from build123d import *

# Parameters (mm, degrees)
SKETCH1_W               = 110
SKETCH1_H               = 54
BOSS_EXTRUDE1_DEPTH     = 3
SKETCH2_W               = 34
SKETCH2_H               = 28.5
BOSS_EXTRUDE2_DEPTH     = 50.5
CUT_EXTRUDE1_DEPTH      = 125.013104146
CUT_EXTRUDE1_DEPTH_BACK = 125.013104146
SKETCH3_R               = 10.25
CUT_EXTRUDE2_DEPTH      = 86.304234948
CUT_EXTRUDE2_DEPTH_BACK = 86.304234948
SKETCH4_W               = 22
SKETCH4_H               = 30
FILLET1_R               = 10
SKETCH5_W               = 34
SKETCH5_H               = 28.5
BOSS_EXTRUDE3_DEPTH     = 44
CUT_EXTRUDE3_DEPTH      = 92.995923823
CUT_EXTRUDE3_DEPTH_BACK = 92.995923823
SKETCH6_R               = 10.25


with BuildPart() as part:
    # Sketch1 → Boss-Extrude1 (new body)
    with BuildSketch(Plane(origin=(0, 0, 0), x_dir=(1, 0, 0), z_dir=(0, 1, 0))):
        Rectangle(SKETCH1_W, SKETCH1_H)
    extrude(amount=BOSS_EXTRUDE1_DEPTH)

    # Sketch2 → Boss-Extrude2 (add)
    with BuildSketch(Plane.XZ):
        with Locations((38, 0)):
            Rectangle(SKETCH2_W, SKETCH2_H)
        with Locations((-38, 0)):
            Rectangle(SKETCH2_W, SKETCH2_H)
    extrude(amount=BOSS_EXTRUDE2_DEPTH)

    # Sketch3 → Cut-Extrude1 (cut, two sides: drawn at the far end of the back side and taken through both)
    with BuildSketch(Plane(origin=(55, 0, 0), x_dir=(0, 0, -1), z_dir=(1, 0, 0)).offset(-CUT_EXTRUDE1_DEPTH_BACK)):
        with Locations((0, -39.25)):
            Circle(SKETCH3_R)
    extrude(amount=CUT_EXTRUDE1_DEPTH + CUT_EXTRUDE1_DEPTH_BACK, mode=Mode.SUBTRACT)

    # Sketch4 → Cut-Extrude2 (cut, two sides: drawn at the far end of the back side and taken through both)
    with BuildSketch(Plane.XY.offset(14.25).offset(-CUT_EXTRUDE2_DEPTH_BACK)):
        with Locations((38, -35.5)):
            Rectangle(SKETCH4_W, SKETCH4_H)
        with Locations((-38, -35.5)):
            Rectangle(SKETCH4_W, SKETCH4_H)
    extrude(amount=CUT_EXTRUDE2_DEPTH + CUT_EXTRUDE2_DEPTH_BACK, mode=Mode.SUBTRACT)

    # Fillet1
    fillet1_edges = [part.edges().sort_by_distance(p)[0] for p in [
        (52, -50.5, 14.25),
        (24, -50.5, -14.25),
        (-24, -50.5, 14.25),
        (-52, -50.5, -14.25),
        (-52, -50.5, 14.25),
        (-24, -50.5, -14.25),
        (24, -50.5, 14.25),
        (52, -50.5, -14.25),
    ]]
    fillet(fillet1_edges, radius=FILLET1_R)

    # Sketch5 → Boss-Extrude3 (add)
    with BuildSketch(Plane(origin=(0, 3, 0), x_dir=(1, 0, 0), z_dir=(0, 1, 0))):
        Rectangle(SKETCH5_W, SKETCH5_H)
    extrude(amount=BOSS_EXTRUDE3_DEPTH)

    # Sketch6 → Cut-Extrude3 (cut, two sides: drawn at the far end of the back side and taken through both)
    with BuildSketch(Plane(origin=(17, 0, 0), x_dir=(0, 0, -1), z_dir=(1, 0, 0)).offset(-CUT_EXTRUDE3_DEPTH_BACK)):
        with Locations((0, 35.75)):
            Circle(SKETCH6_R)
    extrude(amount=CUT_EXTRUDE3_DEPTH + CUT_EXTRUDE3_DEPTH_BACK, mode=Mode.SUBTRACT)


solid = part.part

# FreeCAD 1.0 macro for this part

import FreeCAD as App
import Part
import Sketcher
Q = App.Units.Quantity


def edges_at(feature, points):
    """Names of the edges that pass closest to the given points."""
    edges = feature.Shape.Edges
    near = lambda p: min(range(len(edges)), key=lambda i: edges[i].distToShape(Part.Vertex(*p))[0])
    return sorted({f"Edge{near(p) + 1}" for p in points})

doc = App.newDocument("Part")
body = doc.addObject("PartDesign::Body", "Body")

# Sketch on XZ plane
sketch1 = body.newObject("Sketcher::SketchObject", "Sketch")
sketch1.AttachmentSupport = (doc.getObject("XZ_Plane"), [""])
sketch1.MapMode = "FlatFace"
sketch1.addGeometry(Part.LineSegment(App.Vector(-55, -27, 0), App.Vector(-55, 27, 0)), False)
sketch1.addGeometry(Part.LineSegment(App.Vector(-55, 27, 0), App.Vector(55, 27, 0)), False)
sketch1.addGeometry(Part.LineSegment(App.Vector(55, 27, 0), App.Vector(55, -27, 0)), False)
sketch1.addGeometry(Part.LineSegment(App.Vector(55, -27, 0), App.Vector(-55, -27, 0)), False)
sketch1.addConstraint(Sketcher.Constraint("Coincident", 0, 2, 1, 1))
sketch1.addConstraint(Sketcher.Constraint("Coincident", 1, 2, 2, 1))
sketch1.addConstraint(Sketcher.Constraint("Coincident", 2, 2, 3, 1))
sketch1.addConstraint(Sketcher.Constraint("Coincident", 3, 2, 0, 1))
sketch1.addConstraint(Sketcher.Constraint("Vertical", 0))
sketch1.addConstraint(Sketcher.Constraint("Horizontal", 1))
sketch1.addConstraint(Sketcher.Constraint("Vertical", 2))
sketch1.addConstraint(Sketcher.Constraint("Horizontal", 3))
sketch1.addConstraint(Sketcher.Constraint("Symmetric", 0, 2, 2, 2, -1, 1))
sketch1.addConstraint(Sketcher.Constraint("DistanceX", 1, 1, 1, 2, Q("110 mm")))
sketch1.addConstraint(Sketcher.Constraint("DistanceY", 0, 1, 0, 2, Q("54 mm")))
pad1 = body.newObject("PartDesign::Pad", "Pad")
pad1.Profile = sketch1
pad1.Length = 3
pad1.Reversed = True

# Sketch on XZ plane
sketch2 = body.newObject("Sketcher::SketchObject", "Sketch001")
sketch2.AttachmentSupport = (doc.getObject("XZ_Plane"), [""])
sketch2.MapMode = "FlatFace"
sketch2.addGeometry(Part.LineSegment(App.Vector(21, 14, 0), App.Vector(21, -14, 0)), False)
sketch2.addGeometry(Part.LineSegment(App.Vector(21, -14, 0), App.Vector(55, -14, 0)), False)
sketch2.addGeometry(Part.LineSegment(App.Vector(55, -14, 0), App.Vector(55, 14, 0)), False)
sketch2.addGeometry(Part.LineSegment(App.Vector(55, 14, 0), App.Vector(21, 14, 0)), False)
sketch2.addGeometry(Part.LineSegment(App.Vector(-55, 14, 0), App.Vector(-55, -14, 0)), False)
sketch2.addGeometry(Part.LineSegment(App.Vector(-55, -14, 0), App.Vector(-21, -14, 0)), False)
sketch2.addGeometry(Part.LineSegment(App.Vector(-21, -14, 0), App.Vector(-21, 14, 0)), False)
sketch2.addGeometry(Part.LineSegment(App.Vector(-21, 14, 0), App.Vector(-55, 14, 0)), False)
sketch2.addConstraint(Sketcher.Constraint("Coincident", 0, 2, 1, 1))
sketch2.addConstraint(Sketcher.Constraint("Coincident", 1, 2, 2, 1))
sketch2.addConstraint(Sketcher.Constraint("Coincident", 2, 2, 3, 1))
sketch2.addConstraint(Sketcher.Constraint("Coincident", 3, 2, 0, 1))
sketch2.addConstraint(Sketcher.Constraint("Coincident", 4, 2, 5, 1))
sketch2.addConstraint(Sketcher.Constraint("Coincident", 5, 2, 6, 1))
sketch2.addConstraint(Sketcher.Constraint("Coincident", 6, 2, 7, 1))
sketch2.addConstraint(Sketcher.Constraint("Coincident", 7, 2, 4, 1))
sketch2.addConstraint(Sketcher.Constraint("Vertical", 0))
sketch2.addConstraint(Sketcher.Constraint("Horizontal", 1))
sketch2.addConstraint(Sketcher.Constraint("Vertical", 2))
sketch2.addConstraint(Sketcher.Constraint("Horizontal", 3))
sketch2.addConstraint(Sketcher.Constraint("Vertical", 4))
sketch2.addConstraint(Sketcher.Constraint("Horizontal", 5))
sketch2.addConstraint(Sketcher.Constraint("Vertical", 6))
sketch2.addConstraint(Sketcher.Constraint("Horizontal", 7))
sketch2.addConstraint(Sketcher.Constraint("Symmetric", 2, 2, 4, 2, -1, 1))
sketch2.addConstraint(Sketcher.Constraint("Symmetric", 0, 2, 6, 2, -1, 1))
sketch2.addConstraint(Sketcher.Constraint("Horizontal", 1, 2, 4, 2))
sketch2.addConstraint(Sketcher.Constraint("DistanceX", 1, 1, 1, 2, Q("34 mm")))
sketch2.addConstraint(Sketcher.Constraint("DistanceY", 0, 2, 0, 1, Q("28.5 mm")))
sketch2.addConstraint(Sketcher.Constraint("DistanceX", -1, 1, 0, 2, Q("21 mm")))
pad2 = body.newObject("PartDesign::Pad", "Pad001")
pad2.Profile = sketch2
pad2.Length = 50.5

# Sketch on YZ plane
sketch3 = body.newObject("Sketcher::SketchObject", "Sketch002")
sketch3.AttachmentSupport = (doc.getObject("YZ_Plane"), [""])
sketch3.MapMode = "FlatFace"
sketch3.AttachmentOffset = App.Placement(App.Vector(0, 0, 55), App.Rotation())
sketch3.addGeometry(Part.Circle(App.Vector(-39, 0, 0), App.Vector(0, 0, 1), 10), False)
sketch3.addConstraint(Sketcher.Constraint("PointOnObject", 0, 3, -1))
sketch3.addConstraint(Sketcher.Constraint("Diameter", 0, Q("20.5 mm")))
sketch3.addConstraint(Sketcher.Constraint("DistanceX", 0, 3, -1, 1, Q("39.25 mm")))
pocket1 = body.newObject("PartDesign::Pocket", "Pocket")
pocket1.Profile = sketch3
pocket1.Type = "ThroughAll"
pocket1.Midplane = True

# Sketch on XY plane
sketch4 = body.newObject("Sketcher::SketchObject", "Sketch003")
sketch4.AttachmentSupport = (doc.getObject("XY_Plane"), [""])
sketch4.MapMode = "FlatFace"
sketch4.AttachmentOffset = App.Placement(App.Vector(0, 0, 14.25), App.Rotation())
sketch4.addGeometry(Part.LineSegment(App.Vector(27, -20, 0), App.Vector(27, -50, 0)), False)
sketch4.addGeometry(Part.LineSegment(App.Vector(27, -50, 0), App.Vector(49, -50, 0)), False)
sketch4.addGeometry(Part.LineSegment(App.Vector(49, -50, 0), App.Vector(49, -20, 0)), False)
sketch4.addGeometry(Part.LineSegment(App.Vector(49, -20, 0), App.Vector(27, -20, 0)), False)
sketch4.addGeometry(Part.LineSegment(App.Vector(-49, -20, 0), App.Vector(-49, -50, 0)), False)
sketch4.addGeometry(Part.LineSegment(App.Vector(-49, -50, 0), App.Vector(-27, -50, 0)), False)
sketch4.addGeometry(Part.LineSegment(App.Vector(-27, -50, 0), App.Vector(-27, -20, 0)), False)
sketch4.addGeometry(Part.LineSegment(App.Vector(-27, -20, 0), App.Vector(-49, -20, 0)), False)
sketch4.addConstraint(Sketcher.Constraint("Coincident", 0, 2, 1, 1))
sketch4.addConstraint(Sketcher.Constraint("Coincident", 1, 2, 2, 1))
sketch4.addConstraint(Sketcher.Constraint("Coincident", 2, 2, 3, 1))
sketch4.addConstraint(Sketcher.Constraint("Coincident", 3, 2, 0, 1))
sketch4.addConstraint(Sketcher.Constraint("Coincident", 4, 2, 5, 1))
sketch4.addConstraint(Sketcher.Constraint("Coincident", 5, 2, 6, 1))
sketch4.addConstraint(Sketcher.Constraint("Coincident", 6, 2, 7, 1))
sketch4.addConstraint(Sketcher.Constraint("Coincident", 7, 2, 4, 1))
sketch4.addConstraint(Sketcher.Constraint("Vertical", 0))
sketch4.addConstraint(Sketcher.Constraint("Horizontal", 1))
sketch4.addConstraint(Sketcher.Constraint("Vertical", 2))
sketch4.addConstraint(Sketcher.Constraint("Horizontal", 3))
sketch4.addConstraint(Sketcher.Constraint("Vertical", 4))
sketch4.addConstraint(Sketcher.Constraint("Horizontal", 5))
sketch4.addConstraint(Sketcher.Constraint("Vertical", 6))
sketch4.addConstraint(Sketcher.Constraint("Horizontal", 7))
sketch4.addConstraint(Sketcher.Constraint("Symmetric", 1, 2, 4, 2, -2))
sketch4.addConstraint(Sketcher.Constraint("Symmetric", 3, 2, 6, 2, -2))
sketch4.addConstraint(Sketcher.Constraint("DistanceX", 1, 1, 1, 2, Q("22 mm")))
sketch4.addConstraint(Sketcher.Constraint("DistanceY", 0, 2, 0, 1, Q("30 mm")))
sketch4.addConstraint(Sketcher.Constraint("DistanceX", -1, 1, 0, 2, Q("27 mm")))
sketch4.addConstraint(Sketcher.Constraint("DistanceY", 0, 2, -1, 1, Q("50.5 mm")))
pocket2 = body.newObject("PartDesign::Pocket", "Pocket001")
pocket2.Profile = sketch4
pocket2.Type = "ThroughAll"
pocket2.Midplane = True
doc.recompute()

fillet = body.newObject("PartDesign::Fillet", "Fillet")
fillet.Base = (pocket2, edges_at(pocket2, [
    (52, -50.5, 14.25),
    (24, -50.5, -14.25),
    (-24, -50.5, 14.25),
    (-52, -50.5, -14.25),
    (-52, -50.5, 14.25),
    (-24, -50.5, -14.25),
    (24, -50.5, 14.25),
    (52, -50.5, -14.25),
]))
fillet.Radius = 10

# Sketch on XZ plane
sketch5 = body.newObject("Sketcher::SketchObject", "Sketch004")
sketch5.AttachmentSupport = (doc.getObject("XZ_Plane"), [""])
sketch5.MapMode = "FlatFace"
sketch5.AttachmentOffset = App.Placement(App.Vector(0, 0, -3), App.Rotation())
sketch5.addGeometry(Part.LineSegment(App.Vector(-17, -14, 0), App.Vector(-17, 14, 0)), False)
sketch5.addGeometry(Part.LineSegment(App.Vector(-17, 14, 0), App.Vector(17, 14, 0)), False)
sketch5.addGeometry(Part.LineSegment(App.Vector(17, 14, 0), App.Vector(17, -14, 0)), False)
sketch5.addGeometry(Part.LineSegment(App.Vector(17, -14, 0), App.Vector(-17, -14, 0)), False)
sketch5.addConstraint(Sketcher.Constraint("Coincident", 0, 2, 1, 1))
sketch5.addConstraint(Sketcher.Constraint("Coincident", 1, 2, 2, 1))
sketch5.addConstraint(Sketcher.Constraint("Coincident", 2, 2, 3, 1))
sketch5.addConstraint(Sketcher.Constraint("Coincident", 3, 2, 0, 1))
sketch5.addConstraint(Sketcher.Constraint("Vertical", 0))
sketch5.addConstraint(Sketcher.Constraint("Horizontal", 1))
sketch5.addConstraint(Sketcher.Constraint("Vertical", 2))
sketch5.addConstraint(Sketcher.Constraint("Horizontal", 3))
sketch5.addConstraint(Sketcher.Constraint("Symmetric", 0, 2, 2, 2, -1, 1))
sketch5.addConstraint(Sketcher.Constraint("DistanceX", 1, 1, 1, 2, Q("34 mm")))
sketch5.addConstraint(Sketcher.Constraint("DistanceY", 0, 1, 0, 2, Q("28.5 mm")))
pad3 = body.newObject("PartDesign::Pad", "Pad002")
pad3.Profile = sketch5
pad3.Length = 44
pad3.Reversed = True

# Sketch on YZ plane
sketch6 = body.newObject("Sketcher::SketchObject", "Sketch005")
sketch6.AttachmentSupport = (doc.getObject("YZ_Plane"), [""])
sketch6.MapMode = "FlatFace"
sketch6.AttachmentOffset = App.Placement(App.Vector(0, 0, 17), App.Rotation())
sketch6.addGeometry(Part.Circle(App.Vector(36, 0, 0), App.Vector(0, 0, 1), 10), False)
sketch6.addConstraint(Sketcher.Constraint("PointOnObject", 0, 3, -1))
sketch6.addConstraint(Sketcher.Constraint("Diameter", 0, Q("20.5 mm")))
sketch6.addConstraint(Sketcher.Constraint("DistanceX", -1, 1, 0, 3, Q("35.75 mm")))
pocket3 = body.newObject("PartDesign::Pocket", "Pocket002")
pocket3.Profile = sketch6
pocket3.Type = "ThroughAll"
pocket3.Midplane = True

doc.recompute()
